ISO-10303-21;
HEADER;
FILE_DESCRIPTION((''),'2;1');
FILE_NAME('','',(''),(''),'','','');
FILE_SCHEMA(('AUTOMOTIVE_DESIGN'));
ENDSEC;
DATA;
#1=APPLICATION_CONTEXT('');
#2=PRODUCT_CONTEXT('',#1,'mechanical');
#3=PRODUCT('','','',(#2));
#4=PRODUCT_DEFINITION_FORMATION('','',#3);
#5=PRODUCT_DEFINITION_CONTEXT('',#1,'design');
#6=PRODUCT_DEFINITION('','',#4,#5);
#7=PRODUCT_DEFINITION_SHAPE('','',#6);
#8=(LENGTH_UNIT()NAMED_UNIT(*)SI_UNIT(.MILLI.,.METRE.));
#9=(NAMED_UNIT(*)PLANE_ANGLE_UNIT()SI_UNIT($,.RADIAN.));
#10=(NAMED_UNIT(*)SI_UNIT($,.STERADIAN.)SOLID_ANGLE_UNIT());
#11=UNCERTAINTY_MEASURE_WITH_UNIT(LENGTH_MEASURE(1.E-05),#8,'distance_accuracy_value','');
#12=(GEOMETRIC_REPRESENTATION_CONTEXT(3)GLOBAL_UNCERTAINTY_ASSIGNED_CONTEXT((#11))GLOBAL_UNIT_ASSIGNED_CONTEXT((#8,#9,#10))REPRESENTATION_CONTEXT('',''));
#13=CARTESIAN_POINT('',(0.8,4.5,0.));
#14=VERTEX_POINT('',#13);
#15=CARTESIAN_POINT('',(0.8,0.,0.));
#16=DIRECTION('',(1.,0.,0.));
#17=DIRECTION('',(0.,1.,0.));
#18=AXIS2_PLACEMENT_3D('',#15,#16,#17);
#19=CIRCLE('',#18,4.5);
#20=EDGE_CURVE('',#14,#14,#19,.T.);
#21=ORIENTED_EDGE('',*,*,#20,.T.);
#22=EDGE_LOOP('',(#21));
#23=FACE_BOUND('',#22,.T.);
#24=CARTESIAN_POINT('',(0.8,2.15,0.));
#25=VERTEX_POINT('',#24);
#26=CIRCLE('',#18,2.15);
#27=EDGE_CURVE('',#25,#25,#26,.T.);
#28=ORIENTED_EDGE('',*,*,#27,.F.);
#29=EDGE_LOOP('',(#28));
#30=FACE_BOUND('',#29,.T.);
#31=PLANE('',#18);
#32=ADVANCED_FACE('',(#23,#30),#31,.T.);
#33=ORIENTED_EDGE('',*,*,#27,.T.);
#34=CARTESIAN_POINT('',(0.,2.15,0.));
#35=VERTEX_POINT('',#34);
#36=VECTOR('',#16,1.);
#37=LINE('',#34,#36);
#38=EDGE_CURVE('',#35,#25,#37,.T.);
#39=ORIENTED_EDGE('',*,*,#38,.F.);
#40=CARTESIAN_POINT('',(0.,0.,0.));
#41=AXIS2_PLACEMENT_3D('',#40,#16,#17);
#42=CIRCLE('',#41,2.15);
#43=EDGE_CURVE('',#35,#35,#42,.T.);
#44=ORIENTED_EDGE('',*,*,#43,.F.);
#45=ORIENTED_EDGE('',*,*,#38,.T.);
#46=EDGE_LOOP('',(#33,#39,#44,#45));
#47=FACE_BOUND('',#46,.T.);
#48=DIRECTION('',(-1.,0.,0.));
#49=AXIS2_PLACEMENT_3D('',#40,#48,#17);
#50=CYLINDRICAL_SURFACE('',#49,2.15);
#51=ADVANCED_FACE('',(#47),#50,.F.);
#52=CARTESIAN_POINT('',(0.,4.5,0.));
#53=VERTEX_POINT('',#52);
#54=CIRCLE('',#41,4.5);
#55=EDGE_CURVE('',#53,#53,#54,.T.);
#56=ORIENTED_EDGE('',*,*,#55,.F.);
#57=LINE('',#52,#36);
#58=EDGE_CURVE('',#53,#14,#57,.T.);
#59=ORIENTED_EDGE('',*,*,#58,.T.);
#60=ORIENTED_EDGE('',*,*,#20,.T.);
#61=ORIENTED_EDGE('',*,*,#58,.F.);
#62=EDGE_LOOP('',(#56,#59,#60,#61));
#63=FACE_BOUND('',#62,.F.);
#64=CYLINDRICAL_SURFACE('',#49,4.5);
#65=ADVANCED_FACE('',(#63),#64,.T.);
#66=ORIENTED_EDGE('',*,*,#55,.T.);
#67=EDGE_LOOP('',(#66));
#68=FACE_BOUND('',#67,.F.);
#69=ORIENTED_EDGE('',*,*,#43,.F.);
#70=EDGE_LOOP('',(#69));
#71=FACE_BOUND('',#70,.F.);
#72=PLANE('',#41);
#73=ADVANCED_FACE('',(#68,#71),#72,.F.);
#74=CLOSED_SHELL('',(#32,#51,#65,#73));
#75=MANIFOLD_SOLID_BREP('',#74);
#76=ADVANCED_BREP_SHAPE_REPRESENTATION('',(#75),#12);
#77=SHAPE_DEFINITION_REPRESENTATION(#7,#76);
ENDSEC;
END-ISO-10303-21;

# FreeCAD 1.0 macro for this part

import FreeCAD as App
import Part
import Sketcher

doc = App.newDocument("Part")
params = doc.addObject("Spreadsheet::Sheet", "Params")
for row, (alias, value) in enumerate([
    ("sketch1_diameter", "9 mm"),
    ("sketch1_diameter2", "4.3 mm"),
    ("pad1_length", "0.8 mm"),
], start=1):
    params.set(f"A{row}", alias)
    params.set(f"B{row}", "=" + value)
    params.setAlias(f"B{row}", alias)

body = doc.addObject("PartDesign::Body", "Body")

# Sketch on YZ plane
sketch1 = body.newObject("Sketcher::SketchObject", "Sketch")
sketch1.AttachmentSupport = (doc.getObject("YZ_Plane"), [""])
sketch1.MapMode = "FlatFace"
sketch1.addGeometry([
    Part.Circle(App.Vector(0, 0, 0), App.Vector(0, 0, 1), 4.5),
    Part.Circle(App.Vector(0, 0, 0), App.Vector(0, 0, 1), 2.1),
], False)
sketch1.addConstraint([
    Sketcher.Constraint("Coincident", 0, 3, -1, 1),
    Sketcher.Constraint("Coincident", 1, 3, -1, 1),
    Sketcher.Constraint("Diameter", 0, 9.0),
    Sketcher.Constraint("Diameter", 1, 4.3),
])
sketch1.setExpression("Constraints[2]", "Params.sketch1_diameter")
sketch1.setExpression("Constraints[3]", "Params.sketch1_diameter2")
pad1 = body.newObject("PartDesign::Pad", "Pad")
pad1.Profile = sketch1
pad1.setExpression("Length", "Params.pad1_length")

doc.recompute()
